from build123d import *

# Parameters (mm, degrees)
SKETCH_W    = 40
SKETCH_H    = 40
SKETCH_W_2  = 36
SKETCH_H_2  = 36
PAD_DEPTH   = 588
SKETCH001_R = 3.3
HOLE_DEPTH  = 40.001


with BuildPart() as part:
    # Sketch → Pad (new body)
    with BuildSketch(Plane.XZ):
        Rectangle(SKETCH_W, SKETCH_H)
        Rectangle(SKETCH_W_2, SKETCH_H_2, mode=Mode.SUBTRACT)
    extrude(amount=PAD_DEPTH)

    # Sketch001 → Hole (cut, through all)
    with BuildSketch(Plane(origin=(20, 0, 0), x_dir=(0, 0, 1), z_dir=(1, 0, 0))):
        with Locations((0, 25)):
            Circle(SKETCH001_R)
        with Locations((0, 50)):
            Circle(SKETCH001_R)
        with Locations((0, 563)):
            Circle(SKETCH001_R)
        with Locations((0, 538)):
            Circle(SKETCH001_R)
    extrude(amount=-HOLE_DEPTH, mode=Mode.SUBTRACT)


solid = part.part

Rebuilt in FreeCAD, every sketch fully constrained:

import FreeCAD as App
import Part
import Sketcher
from FreeCAD import Vector
Q = App.Units.Quantity

doc = App.newDocument("Part")
params = doc.addObject("Spreadsheet::Sheet", "Params")
for row, (alias, value) in enumerate([
    ("sketch1_width", "40 mm"),
    ("sketch1_width2", "36 mm"),
    ("pad1_length", "588 mm"),
    ("sketch2_diameter", "6.6 mm"),
], start=1):
    params.set(f"A{row}", alias)
    params.set(f"B{row}", "=" + value)
    params.setAlias(f"B{row}", alias)

body = doc.addObject("PartDesign::Body", "Body")

# Sketch on XZ plane
sketch1 = body.newObject("Sketcher::SketchObject", "Sketch")
sketch1.AttachmentSupport = (doc.getObject("XZ_Plane"), [""])
sketch1.MapMode = "FlatFace"
sketch1.addGeometry(Part.LineSegment(Vector(-20, 20, 0), Vector(-20, -20, 0)), False)
sketch1.addGeometry(Part.LineSegment(Vector(-20, -20, 0), Vector(20, -20, 0)), False)
sketch1.addGeometry(Part.LineSegment(Vector(20, -20, 0), Vector(20, 20, 0)), False)
sketch1.addGeometry(Part.LineSegment(Vector(20, 20, 0), Vector(-20, 20, 0)), False)
sketch1.addGeometry(Part.LineSegment(Vector(18, -18, 0), Vector(-18, -18, 0)), False)
sketch1.addGeometry(Part.LineSegment(Vector(-18, -18, 0), Vector(-18, 18, 0)), False)
sketch1.addGeometry(Part.LineSegment(Vector(-18, 18, 0), Vector(18, 18, 0)), False)
sketch1.addGeometry(Part.LineSegment(Vector(18, 18, 0), Vector(18, -18, 0)), False)
sketch1.addConstraint(Sketcher.Constraint("Coincident", 0, 2, 1, 1))
sketch1.addConstraint(Sketcher.Constraint("Coincident", 1, 2, 2, 1))
sketch1.addConstraint(Sketcher.Constraint("Coincident", 2, 2, 3, 1))
sketch1.addConstraint(Sketcher.Constraint("Coincident", 3, 2, 0, 1))
sketch1.addConstraint(Sketcher.Constraint("Coincident", 4, 2, 5, 1))
sketch1.addConstraint(Sketcher.Constraint("Coincident", 5, 2, 6, 1))
sketch1.addConstraint(Sketcher.Constraint("Coincident", 6, 2, 7, 1))
sketch1.addConstraint(Sketcher.Constraint("Coincident", 7, 2, 4, 1))
sketch1.addConstraint(Sketcher.Constraint("Vertical", 0))
sketch1.addConstraint(Sketcher.Constraint("Horizontal", 1))
sketch1.addConstraint(Sketcher.Constraint("Vertical", 2))
sketch1.addConstraint(Sketcher.Constraint("Horizontal", 3))
sketch1.addConstraint(Sketcher.Constraint("Horizontal", 4))
sketch1.addConstraint(Sketcher.Constraint("Vertical", 5))
sketch1.addConstraint(Sketcher.Constraint("Horizontal", 6))
sketch1.addConstraint(Sketcher.Constraint("Vertical", 7))
sketch1.addConstraint(Sketcher.Constraint("Symmetric", 0, 2, 2, 2, -1, 1))
sketch1.addConstraint(Sketcher.Constraint("Symmetric", 4, 2, 6, 2, -1, 1))
sketch1.addConstraint(Sketcher.Constraint("Equal", 3, 0))
sketch1.addConstraint(Sketcher.Constraint("Equal", 6, 5))
sketch1.addConstraint(Sketcher.Constraint("DistanceX", 1, 1, 1, 2, Q("40 mm")))
sketch1.addConstraint(Sketcher.Constraint("DistanceX", 4, 2, 4, 1, Q("36 mm")))
sketch1.setExpression("Constraints[20]", "Params.sketch1_width")
sketch1.setExpression("Constraints[21]", "Params.sketch1_width2")
pad1 = body.newObject("PartDesign::Pad", "Pad")
pad1.Profile = sketch1
pad1.setExpression("Length", "Params.pad1_length")

# Sketch on YZ plane
sketch2 = body.newObject("Sketcher::SketchObject", "Sketch001")
sketch2.AttachmentSupport = (doc.getObject("YZ_Plane"), [""])
sketch2.MapMode = "FlatFace"
sketch2.AttachmentOffset = App.Placement(Vector(0, 0, 20), App.Rotation())
sketch2.addGeometry(Part.Circle(Vector(-25, 0, 0), Vector(0, 0, 1), 3.3), False)
sketch2.addGeometry(Part.Circle(Vector(-50, 0, 0), Vector(0, 0, 1), 3.3), False)
sketch2.addGeometry(Part.Circle(Vector(-563, 0, 0), Vector(0, 0, 1), 3.3), False)
sketch2.addGeometry(Part.Circle(Vector(-538, 0, 0), Vector(0, 0, 1), 3.3), False)
sketch2.addConstraint(Sketcher.Constraint("Equal", 0, 1))
sketch2.addConstraint(Sketcher.Constraint("Equal", 1, 2))
sketch2.addConstraint(Sketcher.Constraint("Equal", 2, 3))
sketch2.addConstraint(Sketcher.Constraint("PointOnObject", 0, 3, -1))
sketch2.addConstraint(Sketcher.Constraint("PointOnObject", 1, 3, -1))
sketch2.addConstraint(Sketcher.Constraint("PointOnObject", 2, 3, -1))
sketch2.addConstraint(Sketcher.Constraint("PointOnObject", 3, 3, -1))
sketch2.addConstraint(Sketcher.Constraint("Diameter", 0, Q("6.6 mm")))
sketch2.addConstraint(Sketcher.Constraint("DistanceX", 0, 3, -1, 1, Q("25 mm")))
sketch2.addConstraint(Sketcher.Constraint("DistanceX", 1, 3, -1, 1, Q("50 mm")))
sketch2.addConstraint(Sketcher.Constraint("DistanceX", 2, 3, -1, 1, Q("563 mm")))
sketch2.addConstraint(Sketcher.Constraint("DistanceX", 3, 3, -1, 1, Q("538 mm")))
sketch2.setExpression("Constraints[7]", "Params.sketch2_diameter")
pocket1 = body.newObject("PartDesign::Pocket", "Pocket")
pocket1.Profile = sketch2
pocket1.Type = "ThroughAll"

doc.recompute()
